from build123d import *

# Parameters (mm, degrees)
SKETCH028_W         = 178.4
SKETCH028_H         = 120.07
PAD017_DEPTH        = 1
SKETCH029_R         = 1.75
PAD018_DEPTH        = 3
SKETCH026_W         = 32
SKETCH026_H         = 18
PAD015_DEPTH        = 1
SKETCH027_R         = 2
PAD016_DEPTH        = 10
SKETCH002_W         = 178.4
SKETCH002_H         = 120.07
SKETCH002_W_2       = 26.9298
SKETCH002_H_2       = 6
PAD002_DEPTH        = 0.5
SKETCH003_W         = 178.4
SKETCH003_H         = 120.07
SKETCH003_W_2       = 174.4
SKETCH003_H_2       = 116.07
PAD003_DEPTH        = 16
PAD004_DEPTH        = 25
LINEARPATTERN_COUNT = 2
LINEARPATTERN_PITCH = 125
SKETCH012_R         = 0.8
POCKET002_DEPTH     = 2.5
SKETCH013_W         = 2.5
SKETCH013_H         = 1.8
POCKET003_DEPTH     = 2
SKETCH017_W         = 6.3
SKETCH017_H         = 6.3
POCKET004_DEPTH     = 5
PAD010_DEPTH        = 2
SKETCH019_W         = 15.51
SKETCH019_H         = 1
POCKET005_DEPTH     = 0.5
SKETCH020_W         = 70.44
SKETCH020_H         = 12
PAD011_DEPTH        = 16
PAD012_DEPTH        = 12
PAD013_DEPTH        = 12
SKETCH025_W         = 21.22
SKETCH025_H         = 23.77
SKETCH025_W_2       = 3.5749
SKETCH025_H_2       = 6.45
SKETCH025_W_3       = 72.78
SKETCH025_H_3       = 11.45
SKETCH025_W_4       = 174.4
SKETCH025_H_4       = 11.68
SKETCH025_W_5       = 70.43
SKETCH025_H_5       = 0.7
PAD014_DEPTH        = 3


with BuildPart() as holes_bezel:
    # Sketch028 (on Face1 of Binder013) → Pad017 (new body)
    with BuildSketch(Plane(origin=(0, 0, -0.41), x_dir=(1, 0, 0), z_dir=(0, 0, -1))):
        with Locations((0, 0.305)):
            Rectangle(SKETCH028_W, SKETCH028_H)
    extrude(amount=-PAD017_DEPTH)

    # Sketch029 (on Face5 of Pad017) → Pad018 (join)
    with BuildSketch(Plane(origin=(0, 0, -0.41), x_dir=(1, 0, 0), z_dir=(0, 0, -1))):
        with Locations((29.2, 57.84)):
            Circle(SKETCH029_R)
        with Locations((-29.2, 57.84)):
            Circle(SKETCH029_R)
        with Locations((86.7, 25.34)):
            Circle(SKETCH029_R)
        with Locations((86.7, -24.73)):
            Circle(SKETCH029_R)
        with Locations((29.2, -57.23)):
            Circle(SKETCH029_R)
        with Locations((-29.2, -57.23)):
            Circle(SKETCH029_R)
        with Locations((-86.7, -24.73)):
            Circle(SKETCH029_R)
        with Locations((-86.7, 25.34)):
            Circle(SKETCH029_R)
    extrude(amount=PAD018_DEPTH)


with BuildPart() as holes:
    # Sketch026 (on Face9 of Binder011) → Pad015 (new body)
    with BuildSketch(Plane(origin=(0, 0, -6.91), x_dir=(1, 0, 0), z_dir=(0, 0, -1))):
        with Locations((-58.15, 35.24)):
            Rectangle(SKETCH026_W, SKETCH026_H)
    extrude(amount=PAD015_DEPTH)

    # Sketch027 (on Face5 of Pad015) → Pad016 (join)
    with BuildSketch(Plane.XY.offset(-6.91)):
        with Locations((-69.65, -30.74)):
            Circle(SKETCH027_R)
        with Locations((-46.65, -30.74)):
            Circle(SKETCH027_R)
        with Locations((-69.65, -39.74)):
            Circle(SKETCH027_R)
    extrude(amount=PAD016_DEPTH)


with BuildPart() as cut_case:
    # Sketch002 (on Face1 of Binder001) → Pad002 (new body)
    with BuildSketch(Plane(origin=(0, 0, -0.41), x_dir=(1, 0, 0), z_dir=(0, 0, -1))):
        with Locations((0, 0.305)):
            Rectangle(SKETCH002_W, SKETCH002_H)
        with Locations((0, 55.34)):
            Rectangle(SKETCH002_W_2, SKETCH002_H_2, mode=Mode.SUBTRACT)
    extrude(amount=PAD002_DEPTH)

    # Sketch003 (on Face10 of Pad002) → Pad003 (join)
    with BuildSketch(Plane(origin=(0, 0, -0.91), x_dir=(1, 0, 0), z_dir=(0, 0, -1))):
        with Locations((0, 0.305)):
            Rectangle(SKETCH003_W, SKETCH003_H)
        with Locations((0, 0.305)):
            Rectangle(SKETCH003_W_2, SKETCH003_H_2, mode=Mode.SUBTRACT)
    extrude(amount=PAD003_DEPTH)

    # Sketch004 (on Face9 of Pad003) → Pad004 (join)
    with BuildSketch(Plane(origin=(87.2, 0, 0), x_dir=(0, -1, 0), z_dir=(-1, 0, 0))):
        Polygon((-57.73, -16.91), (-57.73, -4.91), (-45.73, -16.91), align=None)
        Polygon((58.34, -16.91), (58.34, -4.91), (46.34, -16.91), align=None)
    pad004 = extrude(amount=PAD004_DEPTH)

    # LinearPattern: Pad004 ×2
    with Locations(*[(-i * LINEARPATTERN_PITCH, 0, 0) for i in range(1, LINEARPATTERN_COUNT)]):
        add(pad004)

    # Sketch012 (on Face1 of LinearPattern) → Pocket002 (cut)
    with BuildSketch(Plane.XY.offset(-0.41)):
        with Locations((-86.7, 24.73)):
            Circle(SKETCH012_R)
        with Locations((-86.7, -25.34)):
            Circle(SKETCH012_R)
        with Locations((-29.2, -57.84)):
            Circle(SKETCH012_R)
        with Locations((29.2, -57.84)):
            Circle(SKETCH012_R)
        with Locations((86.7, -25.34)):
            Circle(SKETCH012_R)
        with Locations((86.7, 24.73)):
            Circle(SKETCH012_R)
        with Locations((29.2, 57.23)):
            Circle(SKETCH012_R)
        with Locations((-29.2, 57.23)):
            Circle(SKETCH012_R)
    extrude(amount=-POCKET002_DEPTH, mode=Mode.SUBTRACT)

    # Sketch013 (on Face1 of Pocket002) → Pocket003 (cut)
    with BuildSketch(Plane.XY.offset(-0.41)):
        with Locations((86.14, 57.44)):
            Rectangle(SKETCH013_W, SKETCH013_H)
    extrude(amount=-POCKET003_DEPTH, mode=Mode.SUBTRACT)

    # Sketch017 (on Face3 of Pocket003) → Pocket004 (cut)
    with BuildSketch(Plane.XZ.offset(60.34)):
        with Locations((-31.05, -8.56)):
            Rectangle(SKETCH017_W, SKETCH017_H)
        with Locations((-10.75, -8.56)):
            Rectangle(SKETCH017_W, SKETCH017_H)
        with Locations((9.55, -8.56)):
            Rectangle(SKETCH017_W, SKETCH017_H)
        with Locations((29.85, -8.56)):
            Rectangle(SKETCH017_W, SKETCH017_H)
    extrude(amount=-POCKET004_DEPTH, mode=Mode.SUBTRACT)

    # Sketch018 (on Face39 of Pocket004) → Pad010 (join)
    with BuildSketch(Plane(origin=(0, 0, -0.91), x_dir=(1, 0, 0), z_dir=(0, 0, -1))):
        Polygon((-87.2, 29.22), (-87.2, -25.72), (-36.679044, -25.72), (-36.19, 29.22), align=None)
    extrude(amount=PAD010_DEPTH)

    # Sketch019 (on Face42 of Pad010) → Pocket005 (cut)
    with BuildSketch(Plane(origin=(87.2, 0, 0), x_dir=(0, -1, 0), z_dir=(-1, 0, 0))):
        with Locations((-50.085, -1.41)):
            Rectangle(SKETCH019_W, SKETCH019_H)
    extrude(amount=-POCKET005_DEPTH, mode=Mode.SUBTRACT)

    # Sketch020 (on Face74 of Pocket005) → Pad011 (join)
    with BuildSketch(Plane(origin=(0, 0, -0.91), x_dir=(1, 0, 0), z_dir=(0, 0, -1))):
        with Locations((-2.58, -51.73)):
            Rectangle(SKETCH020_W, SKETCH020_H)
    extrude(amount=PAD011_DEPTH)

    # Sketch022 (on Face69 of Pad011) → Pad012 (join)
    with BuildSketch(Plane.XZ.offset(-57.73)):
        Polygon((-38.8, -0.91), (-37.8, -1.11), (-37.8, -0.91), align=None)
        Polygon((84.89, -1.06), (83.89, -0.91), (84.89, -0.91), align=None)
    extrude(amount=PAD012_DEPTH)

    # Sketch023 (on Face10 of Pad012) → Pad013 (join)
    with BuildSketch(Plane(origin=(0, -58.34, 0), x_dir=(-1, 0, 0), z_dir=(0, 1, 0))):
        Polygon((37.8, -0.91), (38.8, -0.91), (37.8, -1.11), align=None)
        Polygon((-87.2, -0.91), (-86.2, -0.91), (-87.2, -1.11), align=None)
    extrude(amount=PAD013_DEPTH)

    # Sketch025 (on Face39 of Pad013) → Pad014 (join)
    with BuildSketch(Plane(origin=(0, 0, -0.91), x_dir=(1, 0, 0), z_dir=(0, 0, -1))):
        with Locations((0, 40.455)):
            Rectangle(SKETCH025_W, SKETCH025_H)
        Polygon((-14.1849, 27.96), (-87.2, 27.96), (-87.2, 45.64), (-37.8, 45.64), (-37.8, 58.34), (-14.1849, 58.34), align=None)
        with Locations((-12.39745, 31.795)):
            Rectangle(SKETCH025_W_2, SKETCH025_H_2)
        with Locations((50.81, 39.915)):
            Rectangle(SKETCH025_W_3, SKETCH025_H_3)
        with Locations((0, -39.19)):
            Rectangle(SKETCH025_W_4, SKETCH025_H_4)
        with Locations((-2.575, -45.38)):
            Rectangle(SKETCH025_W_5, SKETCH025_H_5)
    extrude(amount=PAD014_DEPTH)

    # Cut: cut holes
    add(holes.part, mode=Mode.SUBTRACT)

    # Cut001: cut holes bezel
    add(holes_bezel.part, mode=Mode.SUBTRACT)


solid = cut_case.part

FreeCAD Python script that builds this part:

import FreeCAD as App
import Part
import Sketcher
Q = App.Units.Quantity


def add_polygon(sketch, points):
    """Adds a closed chain of lines whose ends are joined by coincident constraints."""
    first, n = sketch.GeometryCount, len(points)
    for a, b in zip(points, points[1:] + points[:1]):
        sketch.addGeometry(Part.LineSegment(App.Vector(*a, 0), App.Vector(*b, 0)), False)
    for i in range(n):
        sketch.addConstraint(Sketcher.Constraint("Coincident", first + i, 2, first + (i + 1) % n, 1))

doc = App.newDocument("Part")
body = doc.addObject("PartDesign::Body", "Body")

# Sketch on XY plane
sketch1 = body.newObject("Sketcher::SketchObject", "Sketch")
sketch1.AttachmentSupport = (doc.getObject("XY_Plane"), [""])
sketch1.MapMode = "FlatFace"
sketch1.AttachmentOffset = App.Placement(App.Vector(0, 0, -0.41), App.Rotation())
add_polygon(sketch1, [(-89.2, -60.34), (-89.2, 59.73), (89.2, 59.73), (89.2, -60.34)])  # lines 0-3
sketch1.addConstraint(Sketcher.Constraint("Vertical", 0))
sketch1.addConstraint(Sketcher.Constraint("Horizontal", 1))
sketch1.addConstraint(Sketcher.Constraint("Vertical", 2))
sketch1.addConstraint(Sketcher.Constraint("Horizontal", 3))
sketch1.addConstraint(Sketcher.Constraint("DistanceX", 1, 1, 1, 2, Q("178.4 mm")))
sketch1.addConstraint(Sketcher.Constraint("DistanceY", 0, 1, 0, 2, Q("120.07 mm")))
sketch1.addConstraint(Sketcher.Constraint("DistanceX", 0, 2, -1, 1, Q("89.2 mm")))
sketch1.addConstraint(Sketcher.Constraint("DistanceY", -1, 1, 0, 2, Q("59.73 mm")))
pad1 = body.newObject("PartDesign::Pad", "Pad")
pad1.Profile = sketch1
pad1.Length = 1

# Sketch on XY plane
sketch2 = body.newObject("Sketcher::SketchObject", "Sketch001")
sketch2.AttachmentSupport = (doc.getObject("XY_Plane"), [""])
sketch2.MapMode = "FlatFace"
sketch2.AttachmentOffset = App.Placement(App.Vector(0, 0, -0.41), App.Rotation())
sketch2.addGeometry(Part.Circle(App.Vector(29.2, -57.84, 0), App.Vector(0, 0, 1), 1.75), False)
sketch2.addGeometry(Part.Circle(App.Vector(-29.2, -57.84, 0), App.Vector(0, 0, 1), 1.75), False)
sketch2.addGeometry(Part.Circle(App.Vector(86.7, -25.34, 0), App.Vector(0, 0, 1), 1.75), False)
sketch2.addGeometry(Part.Circle(App.Vector(86.7, 24.73, 0), App.Vector(0, 0, 1), 1.75), False)
sketch2.addGeometry(Part.Circle(App.Vector(29.2, 57.23, 0), App.Vector(0, 0, 1), 1.75), False)
sketch2.addGeometry(Part.Circle(App.Vector(-29.2, 57.23, 0), App.Vector(0, 0, 1), 1.75), False)
sketch2.addGeometry(Part.Circle(App.Vector(-86.7, 24.73, 0), App.Vector(0, 0, 1), 1.75), False)
sketch2.addGeometry(Part.Circle(App.Vector(-86.7, -25.34, 0), App.Vector(0, 0, 1), 1.75), False)
sketch2.addConstraint(Sketcher.Constraint("Equal", 0, 1))
sketch2.addConstraint(Sketcher.Constraint("Equal", 1, 2))
sketch2.addConstraint(Sketcher.Constraint("Equal", 2, 3))
sketch2.addConstraint(Sketcher.Constraint("Equal", 3, 4))
sketch2.addConstraint(Sketcher.Constraint("Equal", 4, 5))
sketch2.addConstraint(Sketcher.Constraint("Equal", 5, 6))
sketch2.addConstraint(Sketcher.Constraint("Equal", 6, 7))
sketch2.addConstraint(Sketcher.Constraint("Symmetric", 0, 3, 1, 3, -2))
sketch2.addConstraint(Sketcher.Constraint("Symmetric", 4, 3, 5, 3, -2))
sketch2.addConstraint(Sketcher.Constraint("Symmetric", 3, 3, 6, 3, -2))
sketch2.addConstraint(Sketcher.Constraint("Symmetric", 2, 3, 7, 3, -2))
sketch2.addConstraint(Sketcher.Constraint("Vertical", 2, 3, 3, 3))
sketch2.addConstraint(Sketcher.Constraint("Vertical", 0, 3, 4, 3))
sketch2.addConstraint(Sketcher.Constraint("Diameter", 0, Q("3.5 mm")))
sketch2.addConstraint(Sketcher.Constraint("DistanceX", -1, 1, 0, 3, Q("29.2 mm")))
sketch2.addConstraint(Sketcher.Constraint("DistanceX", -1, 1, 2, 3, Q("86.7 mm")))
sketch2.addConstraint(Sketcher.Constraint("DistanceY", 0, 3, 2, 3, Q("32.5 mm")))
sketch2.addConstraint(Sketcher.Constraint("DistanceY", 3, 3, 4, 3, Q("32.5 mm")))
sketch2.addConstraint(Sketcher.Constraint("DistanceY", 0, 3, -1, 1, Q("57.84 mm")))
sketch2.addConstraint(Sketcher.Constraint("DistanceY", -1, 1, 3, 3, Q("24.73 mm")))
pad2 = body.newObject("PartDesign::Pad", "Pad001")
pad2.Profile = sketch2
pad2.Length = 3
pad2.Reversed = True
body2 = doc.addObject("PartDesign::Body", "Body001")

# Sketch on XY plane
sketch3 = body2.newObject("Sketcher::SketchObject", "Sketch002")
sketch3.AttachmentSupport = (doc.getObject("XY_Plane001"), [""])
sketch3.MapMode = "FlatFace"
sketch3.AttachmentOffset = App.Placement(App.Vector(0, 0, -6.91), App.Rotation())
add_polygon(sketch3, [(-74.15, -44.24), (-74.15, -26.24), (-42.15, -26.24), (-42.15, -44.24)])  # lines 0-3
sketch3.addConstraint(Sketcher.Constraint("Vertical", 0))
sketch3.addConstraint(Sketcher.Constraint("Horizontal", 1))
sketch3.addConstraint(Sketcher.Constraint("Vertical", 2))
sketch3.addConstraint(Sketcher.Constraint("Horizontal", 3))
sketch3.addConstraint(Sketcher.Constraint("DistanceX", 1, 1, 1, 2, Q("32 mm")))
sketch3.addConstraint(Sketcher.Constraint("DistanceY", 0, 1, 0, 2, Q("18 mm")))
sketch3.addConstraint(Sketcher.Constraint("DistanceX", 0, 2, -1, 1, Q("74.15 mm")))
sketch3.addConstraint(Sketcher.Constraint("DistanceY", 0, 2, -1, 1, Q("26.24 mm")))
pad3 = body2.newObject("PartDesign::Pad", "Pad002")
pad3.Profile = sketch3
pad3.Length = 1
pad3.Reversed = True

# Sketch on XY plane
sketch4 = body2.newObject("Sketcher::SketchObject", "Sketch003")
sketch4.AttachmentSupport = (doc.getObject("XY_Plane001"), [""])
sketch4.MapMode = "FlatFace"
sketch4.AttachmentOffset = App.Placement(App.Vector(0, 0, -6.91), App.Rotation())
sketch4.addGeometry(Part.Circle(App.Vector(-69.65, -30.74, 0), App.Vector(0, 0, 1), 2), False)
sketch4.addGeometry(Part.Circle(App.Vector(-46.65, -30.74, 0), App.Vector(0, 0, 1), 2), False)
sketch4.addGeometry(Part.Circle(App.Vector(-69.65, -39.74, 0), App.Vector(0, 0, 1), 2), False)
sketch4.addConstraint(Sketcher.Constraint("Equal", 0, 1))
sketch4.addConstraint(Sketcher.Constraint("Equal", 1, 2))
sketch4.addConstraint(Sketcher.Constraint("Horizontal", 0, 3, 1, 3))
sketch4.addConstraint(Sketcher.Constraint("Vertical", 0, 3, 2, 3))
sketch4.addConstraint(Sketcher.Constraint("Diameter", 0, Q("4 mm")))
sketch4.addConstraint(Sketcher.Constraint("DistanceX", 0, 3, 1, 3, Q("23 mm")))
sketch4.addConstraint(Sketcher.Constraint("DistanceY", 2, 3, 0, 3, Q("9 mm")))
sketch4.addConstraint(Sketcher.Constraint("DistanceX", 0, 3, -1, 1, Q("69.65 mm")))
sketch4.addConstraint(Sketcher.Constraint("DistanceY", 0, 3, -1, 1, Q("30.74 mm")))
pad4 = body2.newObject("PartDesign::Pad", "Pad003")
pad4.Profile = sketch4
pad4.Length = 10
body3 = doc.addObject("PartDesign::Body", "Body002")

# Sketch on XY plane
sketch5 = body3.newObject("Sketcher::SketchObject", "Sketch004")
sketch5.AttachmentSupport = (doc.getObject("XY_Plane002"), [""])
sketch5.MapMode = "FlatFace"
sketch5.AttachmentOffset = App.Placement(App.Vector(0, 0, -0.41), App.Rotation())
add_polygon(sketch5, [(-89.2, -60.34), (-89.2, 59.73), (89.2, 59.73), (89.2, -60.34)])  # lines 0-3
add_polygon(sketch5, [(13.4649, -52.34), (-13.4649, -52.34), (-13.4649, -58.34), (13.4649, -58.34)])  # lines 4-7
sketch5.addConstraint(Sketcher.Constraint("Vertical", 0))
sketch5.addConstraint(Sketcher.Constraint("Horizontal", 1))
sketch5.addConstraint(Sketcher.Constraint("Vertical", 2))
sketch5.addConstraint(Sketcher.Constraint("Horizontal", 3))
sketch5.addConstraint(Sketcher.Constraint("Horizontal", 4))
sketch5.addConstraint(Sketcher.Constraint("Vertical", 5))
sketch5.addConstraint(Sketcher.Constraint("Horizontal", 6))
sketch5.addConstraint(Sketcher.Constraint("Vertical", 7))
sketch5.addConstraint(Sketcher.Constraint("DistanceY", 5, 2, 5, 1, Q("6 mm")))
sketch5.addConstraint(Sketcher.Constraint("DistanceX", 1, 1, 1, 2, Q("178.4 mm")))
sketch5.addConstraint(Sketcher.Constraint("DistanceY", 3, 2, 4, 2, Q("8 mm")))
sketch5.addConstraint(Sketcher.Constraint("DistanceY", 0, 1, 0, 2, Q("120.07 mm")))
sketch5.addConstraint(Sketcher.Constraint("DistanceX", 0, 2, -1, 1, Q("89.2 mm")))
sketch5.addConstraint(Sketcher.Constraint("DistanceY", -1, 1, 0, 2, Q("59.73 mm")))
sketch5.addConstraint(Sketcher.Constraint("DistanceX", 4, 2, 4, 1, Q("26.9298 mm")))
sketch5.addConstraint(Sketcher.Constraint("DistanceX", 4, 2, -1, 1, Q("13.4649 mm")))
pad5 = body3.newObject("PartDesign::Pad", "Pad004")
pad5.Profile = sketch5
pad5.Length = 0.5
pad5.Reversed = True

# Sketch on XY plane
sketch6 = body3.newObject("Sketcher::SketchObject", "Sketch005")
sketch6.AttachmentSupport = (doc.getObject("XY_Plane002"), [""])
sketch6.MapMode = "FlatFace"
sketch6.AttachmentOffset = App.Placement(App.Vector(0, 0, -0.91), App.Rotation())
add_polygon(sketch6, [(-89.2, -60.34), (-89.2, 59.73), (89.2, 59.73), (89.2, -60.34)])  # lines 0-3
add_polygon(sketch6, [(87.2, 57.73), (-87.2, 57.73), (-87.2, -58.34), (87.2, -58.34)])  # lines 4-7
sketch6.addConstraint(Sketcher.Constraint("Vertical", 0))
sketch6.addConstraint(Sketcher.Constraint("Horizontal", 1))
sketch6.addConstraint(Sketcher.Constraint("Vertical", 2))
sketch6.addConstraint(Sketcher.Constraint("Horizontal", 3))
sketch6.addConstraint(Sketcher.Constraint("Horizontal", 4))
sketch6.addConstraint(Sketcher.Constraint("Vertical", 5))
sketch6.addConstraint(Sketcher.Constraint("Horizontal", 6))
sketch6.addConstraint(Sketcher.Constraint("Vertical", 7))
sketch6.addConstraint(Sketcher.Constraint("DistanceX", 1, 1, 1, 2, Q("178.4 mm")))
sketch6.addConstraint(Sketcher.Constraint("DistanceX", 4, 2, 4, 1, Q("174.4 mm")))
sketch6.addConstraint(Sketcher.Constraint("DistanceX", 0, 2, 4, 2, Q("2 mm")))
sketch6.addConstraint(Sketcher.Constraint("DistanceY", 4, 2, 0, 2, Q("2 mm")))
sketch6.addConstraint(Sketcher.Constraint("DistanceY", 3, 2, 5, 2, Q("2 mm")))
sketch6.addConstraint(Sketcher.Constraint("DistanceY", 0, 1, 0, 2, Q("120.07 mm")))
sketch6.addConstraint(Sketcher.Constraint("DistanceX", 0, 2, -1, 1, Q("89.2 mm")))
sketch6.addConstraint(Sketcher.Constraint("DistanceY", -1, 1, 0, 2, Q("59.73 mm")))
pad6 = body3.newObject("PartDesign::Pad", "Pad005")
pad6.Profile = sketch6
pad6.Length = 16
pad6.Reversed = True

# Sketch on YZ plane
sketch7 = body3.newObject("Sketcher::SketchObject", "Sketch006")
sketch7.AttachmentSupport = (doc.getObject("YZ_Plane002"), [""])
sketch7.MapMode = "FlatFace"
sketch7.AttachmentOffset = App.Placement(App.Vector(0, 0, 87.2), App.Rotation())
add_polygon(sketch7, [(57.73, -4.91), (57.73, -16.91), (45.73, -16.91)])  # lines 0-2
add_polygon(sketch7, [(-58.34, -16.91), (-58.34, -4.91), (-46.34, -16.91)])  # lines 3-5
sketch7.addConstraint(Sketcher.Constraint("Vertical", 0))
sketch7.addConstraint(Sketcher.Constraint("Horizontal", 1))
sketch7.addConstraint(Sketcher.Constraint("Vertical", 3))
sketch7.addConstraint(Sketcher.Constraint("Horizontal", 5))
sketch7.addConstraint(Sketcher.Constraint("Perpendicular", 2, 4))
sketch7.addConstraint(Sketcher.Constraint("Horizontal", 2, 2, 3, 2))
sketch7.addConstraint(Sketcher.Constraint("Horizontal", 1, 2, 4, 2))
sketch7.addConstraint(Sketcher.Constraint("Equal", 1, 5))
sketch7.addConstraint(Sketcher.Constraint("DistanceX", 1, 2, 1, 1, Q("12 mm")))
sketch7.addConstraint(Sketcher.Constraint("DistanceX", -1, 1, 0, 2, Q("57.73 mm")))
sketch7.addConstraint(Sketcher.Constraint("DistanceY", 0, 2, -1, 1, Q("16.91 mm")))
sketch7.addConstraint(Sketcher.Constraint("DistanceX", 3, 2, -1, 1, Q("58.34 mm")))
pad7 = body3.newObject("PartDesign::Pad", "Pad006")
pad7.Profile = sketch7
pad7.Length = 25
pad7.Reversed = True
doc.recompute()

linearpattern = body3.newObject("PartDesign::LinearPattern", "LinearPattern")
linearpattern.Originals = [pad7]
linearpattern.Direction = (doc.getObject("X_Axis002"), [""])
linearpattern.Mode = "offset"
linearpattern.Offset = 125
linearpattern.Occurrences = 2
linearpattern.Reversed = True
body3.Tip = linearpattern

# Sketch on XY plane
sketch8 = body3.newObject("Sketcher::SketchObject", "Sketch007")
sketch8.AttachmentSupport = (doc.getObject("XY_Plane002"), [""])
sketch8.MapMode = "FlatFace"
sketch8.AttachmentOffset = App.Placement(App.Vector(0, 0, -0.41), App.Rotation())
sketch8.addGeometry(Part.Circle(App.Vector(-86.7, 24.73, 0), App.Vector(0, 0, 1), 0.8), False)
sketch8.addGeometry(Part.Circle(App.Vector(-86.7, -25.34, 0), App.Vector(0, 0, 1), 0.8), False)
sketch8.addGeometry(Part.Circle(App.Vector(-29.2, -57.84, 0), App.Vector(0, 0, 1), 0.8), False)
sketch8.addGeometry(Part.Circle(App.Vector(29.2, -57.84, 0), App.Vector(0, 0, 1), 0.8), False)
sketch8.addGeometry(Part.Circle(App.Vector(86.7, -25.34, 0), App.Vector(0, 0, 1), 0.8), False)
sketch8.addGeometry(Part.Circle(App.Vector(86.7, 24.73, 0), App.Vector(0, 0, 1), 0.8), False)
sketch8.addGeometry(Part.Circle(App.Vector(29.2, 57.23, 0), App.Vector(0, 0, 1), 0.8), False)
sketch8.addGeometry(Part.Circle(App.Vector(-29.2, 57.23, 0), App.Vector(0, 0, 1), 0.8), False)
sketch8.addConstraint(Sketcher.Constraint("Equal", 0, 1))
sketch8.addConstraint(Sketcher.Constraint("Equal", 1, 2))
sketch8.addConstraint(Sketcher.Constraint("Equal", 2, 3))
sketch8.addConstraint(Sketcher.Constraint("Equal", 3, 4))
sketch8.addConstraint(Sketcher.Constraint("Equal", 4, 5))
sketch8.addConstraint(Sketcher.Constraint("Equal", 5, 6))
sketch8.addConstraint(Sketcher.Constraint("Equal", 6, 7))
sketch8.addConstraint(Sketcher.Constraint("Symmetric", 2, 3, 3, 3, -2))
sketch8.addConstraint(Sketcher.Constraint("Symmetric", 1, 3, 4, 3, -2))
sketch8.addConstraint(Sketcher.Constraint("Symmetric", 0, 3, 5, 3, -2))
sketch8.addConstraint(Sketcher.Constraint("Symmetric", 6, 3, 7, 3, -2))
sketch8.addConstraint(Sketcher.Constraint("Vertical", 0, 3, 1, 3))
sketch8.addConstraint(Sketcher.Constraint("Vertical", 3, 3, 6, 3))
sketch8.addConstraint(Sketcher.Constraint("Diameter", 0, Q("1.6 mm")))
sketch8.addConstraint(Sketcher.Constraint("DistanceX", 0, 3, -1, 1, Q("86.7 mm")))
sketch8.addConstraint(Sketcher.Constraint("DistanceX", 2, 3, -1, 1, Q("29.2 mm")))
sketch8.addConstraint(Sketcher.Constraint("DistanceY", 2, 3, 1, 3, Q("32.5 mm")))
sketch8.addConstraint(Sketcher.Constraint("DistanceY", 5, 3, 6, 3, Q("32.5 mm")))
sketch8.addConstraint(Sketcher.Constraint("DistanceY", -1, 1, 0, 3, Q("24.73 mm")))
sketch8.addConstraint(Sketcher.Constraint("DistanceY", 1, 3, -1, 1, Q("25.34 mm")))
pocket1 = body3.newObject("PartDesign::Pocket", "Pocket")
pocket1.Profile = sketch8
pocket1.Length = 2.5

# Sketch on XY plane
sketch9 = body3.newObject("Sketcher::SketchObject", "Sketch008")
sketch9.AttachmentSupport = (doc.getObject("XY_Plane002"), [""])
sketch9.MapMode = "FlatFace"
sketch9.AttachmentOffset = App.Placement(App.Vector(0, 0, -0.41), App.Rotation())
add_polygon(sketch9, [(84.89, 58.34), (84.89, 56.54), (87.39, 56.54), (87.39, 58.34)])  # lines 0-3
sketch9.addConstraint(Sketcher.Constraint("Vertical", 0))
sketch9.addConstraint(Sketcher.Constraint("Horizontal", 1))
sketch9.addConstraint(Sketcher.Constraint("Vertical", 2))
sketch9.addConstraint(Sketcher.Constraint("Horizontal", 3))
sketch9.addConstraint(Sketcher.Constraint("DistanceX", 1, 1, 1, 2, Q("2.5 mm")))
sketch9.addConstraint(Sketcher.Constraint("DistanceY", 0, 2, 0, 1, Q("1.8 mm")))
sketch9.addConstraint(Sketcher.Constraint("DistanceX", -1, 1, 0, 2, Q("84.89 mm")))
sketch9.addConstraint(Sketcher.Constraint("DistanceY", -1, 1, 0, 2, Q("56.54 mm")))
pocket2 = body3.newObject("PartDesign::Pocket", "Pocket001")
pocket2.Profile = sketch9
pocket2.Length = 2

# Sketch on XZ plane
sketch10 = body3.newObject("Sketcher::SketchObject", "Sketch009")
sketch10.AttachmentSupport = (doc.getObject("XZ_Plane002"), [""])
sketch10.MapMode = "FlatFace"
sketch10.AttachmentOffset = App.Placement(App.Vector(0, 0, 60.34), App.Rotation())
add_polygon(sketch10, [(-34.2, -5.41), (-34.2, -11.71), (-27.9, -11.71), (-27.9, -5.41)])  # lines 0-3
add_polygon(sketch10, [(-13.9, -5.41), (-13.9, -11.71), (-7.6, -11.71), (-7.6, -5.41)])  # lines 4-7
add_polygon(sketch10, [(6.4, -5.41), (6.4, -11.71), (12.7, -11.71), (12.7, -5.41)])  # lines 8-11
add_polygon(sketch10, [(26.7, -5.41), (26.7, -11.71), (33, -11.71), (33, -5.41)])  # lines 12-15
sketch10.addConstraint(Sketcher.Constraint("Vertical", 0))
sketch10.addConstraint(Sketcher.Constraint("Horizontal", 1))
sketch10.addConstraint(Sketcher.Constraint("Vertical", 2))
sketch10.addConstraint(Sketcher.Constraint("Horizontal", 3))
sketch10.addConstraint(Sketcher.Constraint("Vertical", 4))
sketch10.addConstraint(Sketcher.Constraint("Horizontal", 5))
sketch10.addConstraint(Sketcher.Constraint("Vertical", 6))
sketch10.addConstraint(Sketcher.Constraint("Horizontal", 7))
sketch10.addConstraint(Sketcher.Constraint("Vertical", 8))
sketch10.addConstraint(Sketcher.Constraint("Horizontal", 9))
sketch10.addConstraint(Sketcher.Constraint("Vertical", 10))
sketch10.addConstraint(Sketcher.Constraint("Horizontal", 11))
sketch10.addConstraint(Sketcher.Constraint("Vertical", 12))
sketch10.addConstraint(Sketcher.Constraint("Horizontal", 13))
sketch10.addConstraint(Sketcher.Constraint("Vertical", 14))
sketch10.addConstraint(Sketcher.Constraint("Horizontal", 15))
sketch10.addConstraint(Sketcher.Constraint("Horizontal", 1, 2, 4, 2))
sketch10.addConstraint(Sketcher.Constraint("Horizontal", 3, 2, 6, 2))
sketch10.addConstraint(Sketcher.Constraint("Horizontal", 5, 2, 8, 2))
sketch10.addConstraint(Sketcher.Constraint("Horizontal", 7, 2, 10, 2))
sketch10.addConstraint(Sketcher.Constraint("Horizontal", 9, 2, 12, 2))
sketch10.addConstraint(Sketcher.Constraint("Horizontal", 11, 2, 14, 2))
sketch10.addConstraint(Sketcher.Constraint("Equal", 3, 5))
sketch10.addConstraint(Sketcher.Constraint("Equal", 7, 9))
sketch10.addConstraint(Sketcher.Constraint("Equal", 11, 13))
sketch10.addConstraint(Sketcher.Constraint("Equal", 15, 0))
sketch10.addConstraint(Sketcher.Constraint("DistanceX", 1, 1, 1, 2, Q("6.3 mm")))
sketch10.addConstraint(Sketcher.Constraint("DistanceX", -1, 1, 13, 2, Q("33 mm")))
sketch10.addConstraint(Sketcher.Constraint("DistanceX", 1, 2, 4, 2, Q("14 mm")))
sketch10.addConstraint(Sketcher.Constraint("DistanceX", 5, 2, 8, 2, Q("14 mm")))
sketch10.addConstraint(Sketcher.Constraint("DistanceX", 9, 2, 12, 2, Q("14 mm")))
sketch10.addConstraint(Sketcher.Constraint("DistanceY", 0, 2, -1, 1, Q("11.71 mm")))
pocket3 = body3.newObject("PartDesign::Pocket", "Pocket002")
pocket3.Profile = sketch10
pocket3.Length = 5

# Sketch on XY plane
sketch11 = body3.newObject("Sketcher::SketchObject", "Sketch010")
sketch11.AttachmentSupport = (doc.getObject("XY_Plane002"), [""])
sketch11.MapMode = "FlatFace"
sketch11.AttachmentOffset = App.Placement(App.Vector(0, 0, -0.91), App.Rotation())
add_polygon(sketch11, [(-87.2, -29.22), (-87.2, 25.72), (-36.679044, 25.72), (-36.19, -29.22)])  # lines 0-3
sketch11.addConstraint(Sketcher.Constraint("Vertical", 0))
sketch11.addConstraint(Sketcher.Constraint("Horizontal", 1))
sketch11.addConstraint(Sketcher.Constraint("Horizontal", 3))
sketch11.addConstraint(Sketcher.Constraint("DistanceX", 3, 2, 3, 1, Q("51.01 mm")))
sketch11.addConstraint(Sketcher.Constraint("DistanceY", 0, 1, 0, 2, Q("54.94 mm")))
sketch11.addConstraint(Sketcher.Constraint("DistanceX", 0, 2, -1, 1, Q("87.2 mm")))
sketch11.addConstraint(Sketcher.Constraint("Angle", 2, Q("-89.49 deg")))
sketch11.addConstraint(Sketcher.Constraint("DistanceY", -1, 1, 0, 2, Q("25.72 mm")))
pad8 = body3.newObject("PartDesign::Pad", "Pad007")
pad8.Profile = sketch11
pad8.Length = 2
pad8.Reversed = True

# Sketch on YZ plane
sketch12 = body3.newObject("Sketcher::SketchObject", "Sketch011")
sketch12.AttachmentSupport = (doc.getObject("YZ_Plane002"), [""])
sketch12.MapMode = "FlatFace"
sketch12.AttachmentOffset = App.Placement(App.Vector(0, 0, 87.2), App.Rotation())
add_polygon(sketch12, [(57.84, -0.91), (57.84, -1.91), (42.33, -1.91), (42.33, -0.91)])  # lines 0-3
sketch12.addConstraint(Sketcher.Constraint("Vertical", 0))
sketch12.addConstraint(Sketcher.Constraint("Horizontal", 1))
sketch12.addConstraint(Sketcher.Constraint("Vertical", 2))
sketch12.addConstraint(Sketcher.Constraint("Horizontal", 3))
sketch12.addConstraint(Sketcher.Constraint("DistanceY", 0, 2, 0, 1, Q("1 mm")))
sketch12.addConstraint(Sketcher.Constraint("DistanceX", 1, 2, 1, 1, Q("15.51 mm")))
sketch12.addConstraint(Sketcher.Constraint("DistanceX", -1, 1, 0, 2, Q("57.84 mm")))
sketch12.addConstraint(Sketcher.Constraint("DistanceY", 0, 2, -1, 1, Q("1.91 mm")))
pocket4 = body3.newObject("PartDesign::Pocket", "Pocket003")
pocket4.Profile = sketch12
pocket4.Length = 0.5
pocket4.Reversed = True

# Sketch on XY plane
sketch13 = body3.newObject("Sketcher::SketchObject", "Sketch012")
sketch13.AttachmentSupport = (doc.getObject("XY_Plane002"), [""])
sketch13.MapMode = "FlatFace"
sketch13.AttachmentOffset = App.Placement(App.Vector(0, 0, -0.91), App.Rotation())
add_polygon(sketch13, [(-37.8, 45.73), (-37.8, 57.73), (32.64, 57.73), (32.64, 45.73)])  # lines 0-3
sketch13.addConstraint(Sketcher.Constraint("Vertical", 0))
sketch13.addConstraint(Sketcher.Constraint("Horizontal", 1))
sketch13.addConstraint(Sketcher.Constraint("Vertical", 2))
sketch13.addConstraint(Sketcher.Constraint("Horizontal", 3))
sketch13.addConstraint(Sketcher.Constraint("DistanceY", 0, 1, 0, 2, Q("12 mm")))
sketch13.addConstraint(Sketcher.Constraint("DistanceX", 1, 1, 1, 2, Q("70.44 mm")))
sketch13.addConstraint(Sketcher.Constraint("DistanceX", 0, 2, -1, 1, Q("37.8 mm")))
sketch13.addConstraint(Sketcher.Constraint("DistanceY", -1, 1, 0, 2, Q("57.73 mm")))
pad9 = body3.newObject("PartDesign::Pad", "Pad008")
pad9.Profile = sketch13
pad9.Length = 16
pad9.Reversed = True

# Sketch on XZ plane
sketch14 = body3.newObject("Sketcher::SketchObject", "Sketch013")
sketch14.AttachmentSupport = (doc.getObject("XZ_Plane002"), [""])
sketch14.MapMode = "FlatFace"
sketch14.AttachmentOffset = App.Placement(App.Vector(0, 0, -57.73), App.Rotation())
add_polygon(sketch14, [(-38.8, -0.91), (-37.8, -1.11), (-37.8, -0.91)])  # lines 0-2
add_polygon(sketch14, [(83.89, -0.91), (84.89, -1.06), (84.89, -0.91)])  # lines 3-5
sketch14.addConstraint(Sketcher.Constraint("Vertical", 1))
sketch14.addConstraint(Sketcher.Constraint("Horizontal", 2))
sketch14.addConstraint(Sketcher.Constraint("Vertical", 4))
sketch14.addConstraint(Sketcher.Constraint("Horizontal", 5))
sketch14.addConstraint(Sketcher.Constraint("Horizontal", 2, 2, 4, 2))
sketch14.addConstraint(Sketcher.Constraint("Equal", 2, 5))
sketch14.addConstraint(Sketcher.Constraint("DistanceX", 2, 2, 2, 1, Q("1 mm")))
sketch14.addConstraint(Sketcher.Constraint("DistanceY", 1, 1, 1, 2, Q("0.2 mm")))
sketch14.addConstraint(Sketcher.Constraint("DistanceY", 4, 1, 4, 2, Q("0.15 mm")))
sketch14.addConstraint(Sketcher.Constraint("DistanceX", 0, 2, -1, 1, Q("37.8 mm")))
sketch14.addConstraint(Sketcher.Constraint("DistanceY", 0, 2, -1, 1, Q("1.11 mm")))
sketch14.addConstraint(Sketcher.Constraint("DistanceX", -1, 1, 3, 2, Q("84.89 mm")))
pad10 = body3.newObject("PartDesign::Pad", "Pad009")
pad10.Profile = sketch14
pad10.Length = 12

# Sketch on XZ plane
sketch15 = body3.newObject("Sketcher::SketchObject", "Sketch014")
sketch15.AttachmentSupport = (doc.getObject("XZ_Plane002"), [""])
sketch15.MapMode = "FlatFace"
sketch15.AttachmentOffset = App.Placement(App.Vector(0, 0, 58.34), App.Rotation())
add_polygon(sketch15, [(-38.8, -0.91), (-37.8, -0.91), (-37.8, -1.11)])  # lines 0-2
add_polygon(sketch15, [(86.2, -0.91), (87.2, -0.91), (87.2, -1.11)])  # lines 3-5
sketch15.addConstraint(Sketcher.Constraint("Horizontal", 0))
sketch15.addConstraint(Sketcher.Constraint("Vertical", 1))
sketch15.addConstraint(Sketcher.Constraint("Horizontal", 3))
sketch15.addConstraint(Sketcher.Constraint("Vertical", 4))
sketch15.addConstraint(Sketcher.Constraint("Parallel", 2, 5))
sketch15.addConstraint(Sketcher.Constraint("Horizontal", 2, 2, 3, 2))
sketch15.addConstraint(Sketcher.Constraint("Horizontal", 1, 2, 4, 2))
sketch15.addConstraint(Sketcher.Constraint("DistanceX", 0, 1, 0, 2, Q("1 mm")))
sketch15.addConstraint(Sketcher.Constraint("DistanceY", 1, 2, 1, 1, Q("0.2 mm")))
sketch15.addConstraint(Sketcher.Constraint("DistanceX", 0, 2, 3, 2, Q("125 mm")))
sketch15.addConstraint(Sketcher.Constraint("DistanceX", 0, 2, -1, 1, Q("37.8 mm")))
sketch15.addConstraint(Sketcher.Constraint("DistanceY", 0, 2, -1, 1, Q("0.91 mm")))
pad11 = body3.newObject("PartDesign::Pad", "Pad010")
pad11.Profile = sketch15
pad11.Length = 12
pad11.Reversed = True

# Sketch on XY plane
sketch16 = body3.newObject("Sketcher::SketchObject", "Sketch015")
sketch16.AttachmentSupport = (doc.getObject("XY_Plane002"), [""])
sketch16.MapMode = "FlatFace"
sketch16.AttachmentOffset = App.Placement(App.Vector(0, 0, -0.91), App.Rotation())
add_polygon(sketch16, [(-10.61, -52.34), (-10.61, -35.02), (-14.1849, -35.02), (-14.1849, -58.34), (-37.8, -58.34), (-37.8, -45.64), (-87.2, -45.64), (-87.2, -27.96), (-14.1849, -27.96), (-14.1849, -28.57), (10.61, -28.57), (10.61, -52.34)])  # lines 0-11
add_polygon(sketch16, [(14.42, -45.64), (14.42, -34.19), (87.2, -34.19), (87.2, -45.64)])  # lines 12-15
add_polygon(sketch16, [(-87.2, 33.35), (-87.2, 45.03), (-37.79, 45.03), (-37.79, 45.73), (32.64, 45.73), (32.64, 45.03), (87.2, 45.03), (87.2, 33.35)])  # lines 16-23
sketch16.addConstraint(Sketcher.Constraint("Vertical", 0))
sketch16.addConstraint(Sketcher.Constraint("Horizontal", 1))
sketch16.addConstraint(Sketcher.Constraint("Vertical", 2))
sketch16.addConstraint(Sketcher.Constraint("Horizontal", 3))
sketch16.addConstraint(Sketcher.Constraint("Vertical", 4))
sketch16.addConstraint(Sketcher.Constraint("Horizontal", 5))
sketch16.addConstraint(Sketcher.Constraint("Vertical", 6))
sketch16.addConstraint(Sketcher.Constraint("Horizontal", 7))
sketch16.addConstraint(Sketcher.Constraint("Vertical", 8))
sketch16.addConstraint(Sketcher.Constraint("Horizontal", 9))
sketch16.addConstraint(Sketcher.Constraint("Vertical", 10))
sketch16.addConstraint(Sketcher.Constraint("Horizontal", 11))
sketch16.addConstraint(Sketcher.Constraint("Vertical", 12))
sketch16.addConstraint(Sketcher.Constraint("Horizontal", 13))
sketch16.addConstraint(Sketcher.Constraint("Vertical", 14))
sketch16.addConstraint(Sketcher.Constraint("Horizontal", 15))
sketch16.addConstraint(Sketcher.Constraint("Vertical", 16))
sketch16.addConstraint(Sketcher.Constraint("Horizontal", 17))
sketch16.addConstraint(Sketcher.Constraint("Vertical", 18))
sketch16.addConstraint(Sketcher.Constraint("Horizontal", 19))
sketch16.addConstraint(Sketcher.Constraint("Vertical", 20))
sketch16.addConstraint(Sketcher.Constraint("Horizontal", 21))
sketch16.addConstraint(Sketcher.Constraint("Vertical", 22))
sketch16.addConstraint(Sketcher.Constraint("Horizontal", 23))
sketch16.addConstraint(Sketcher.Constraint("Symmetric", 5, 2, 14, 2, -2))
sketch16.addConstraint(Sketcher.Constraint("Symmetric", 16, 2, 21, 2, -2))
sketch16.addConstraint(Sketcher.Constraint("Vertical", 2, 2, 7, 2))
sketch16.addConstraint(Sketcher.Constraint("Vertical", 6, 2, 16, 2))
sketch16.addConstraint(Sketcher.Constraint("DistanceX", 5, 2, 5, 1, Q("49.4 mm")))
sketch16.addConstraint(Sketcher.Constraint("DistanceX", 23, 2, 23, 1, Q("174.4 mm")))
sketch16.addConstraint(Sketcher.Constraint("DistanceY", 4, 1, 4, 2, Q("12.7 mm")))
sketch16.addConstraint(Sketcher.Constraint("DistanceY", 18, 1, 18, 2, Q("0.7 mm")))
sketch16.addConstraint(Sketcher.Constraint("DistanceY", 2, 2, 10, 2, Q("6 mm")))
sketch16.addConstraint(Sketcher.Constraint("DistanceX", 11, 2, 11, 1, Q("21.22 mm")))
sketch16.addConstraint(Sketcher.Constraint("DistanceX", 13, 1, 13, 2, Q("72.78 mm")))
sketch16.addConstraint(Sketcher.Constraint("DistanceX", 17, 1, 17, 2, Q("49.41 mm")))
sketch16.addConstraint(Sketcher.Constraint("DistanceX", 19, 1, 19, 2, Q("70.43 mm")))
sketch16.addConstraint(Sketcher.Constraint("DistanceY", 0, 1, 0, 2, Q("17.32 mm")))
sketch16.addConstraint(Sketcher.Constraint("DistanceY", 6, 1, 6, 2, Q("17.68 mm")))
sketch16.addConstraint(Sketcher.Constraint("DistanceY", 8, 2, 8, 1, Q("0.61 mm")))
sketch16.addConstraint(Sketcher.Constraint("DistanceY", 12, 1, 12, 2, Q("11.45 mm")))
sketch16.addConstraint(Sketcher.Constraint("DistanceY", 16, 1, 16, 2, Q("11.68 mm")))
sketch16.addConstraint(Sketcher.Constraint("DistanceY", 8, 2, 16, 2, Q("73.6 mm")))
sketch16.addConstraint(Sketcher.Constraint("DistanceX", 0, 2, -1, 1, Q("10.61 mm")))
sketch16.addConstraint(Sketcher.Constraint("DistanceY", 0, 2, -1, 1, Q("35.02 mm")))
sketch16.addConstraint(Sketcher.Constraint("DistanceX", 1, 2, 1, 1, Q("3.5749 mm")))
pad12 = body3.newObject("PartDesign::Pad", "Pad011")
pad12.Profile = sketch16
pad12.Length = 3
pad12.Reversed = True
doc.recompute()

boolean = body3.newObject("PartDesign::Boolean", "Boolean")
boolean.Type = "Cut"
boolean.addObjects([body2])
doc.recompute()

boolean2 = body3.newObject("PartDesign::Boolean", "Boolean001")
boolean2.Type = "Cut"
boolean2.addObjects([body])

doc.recompute()
